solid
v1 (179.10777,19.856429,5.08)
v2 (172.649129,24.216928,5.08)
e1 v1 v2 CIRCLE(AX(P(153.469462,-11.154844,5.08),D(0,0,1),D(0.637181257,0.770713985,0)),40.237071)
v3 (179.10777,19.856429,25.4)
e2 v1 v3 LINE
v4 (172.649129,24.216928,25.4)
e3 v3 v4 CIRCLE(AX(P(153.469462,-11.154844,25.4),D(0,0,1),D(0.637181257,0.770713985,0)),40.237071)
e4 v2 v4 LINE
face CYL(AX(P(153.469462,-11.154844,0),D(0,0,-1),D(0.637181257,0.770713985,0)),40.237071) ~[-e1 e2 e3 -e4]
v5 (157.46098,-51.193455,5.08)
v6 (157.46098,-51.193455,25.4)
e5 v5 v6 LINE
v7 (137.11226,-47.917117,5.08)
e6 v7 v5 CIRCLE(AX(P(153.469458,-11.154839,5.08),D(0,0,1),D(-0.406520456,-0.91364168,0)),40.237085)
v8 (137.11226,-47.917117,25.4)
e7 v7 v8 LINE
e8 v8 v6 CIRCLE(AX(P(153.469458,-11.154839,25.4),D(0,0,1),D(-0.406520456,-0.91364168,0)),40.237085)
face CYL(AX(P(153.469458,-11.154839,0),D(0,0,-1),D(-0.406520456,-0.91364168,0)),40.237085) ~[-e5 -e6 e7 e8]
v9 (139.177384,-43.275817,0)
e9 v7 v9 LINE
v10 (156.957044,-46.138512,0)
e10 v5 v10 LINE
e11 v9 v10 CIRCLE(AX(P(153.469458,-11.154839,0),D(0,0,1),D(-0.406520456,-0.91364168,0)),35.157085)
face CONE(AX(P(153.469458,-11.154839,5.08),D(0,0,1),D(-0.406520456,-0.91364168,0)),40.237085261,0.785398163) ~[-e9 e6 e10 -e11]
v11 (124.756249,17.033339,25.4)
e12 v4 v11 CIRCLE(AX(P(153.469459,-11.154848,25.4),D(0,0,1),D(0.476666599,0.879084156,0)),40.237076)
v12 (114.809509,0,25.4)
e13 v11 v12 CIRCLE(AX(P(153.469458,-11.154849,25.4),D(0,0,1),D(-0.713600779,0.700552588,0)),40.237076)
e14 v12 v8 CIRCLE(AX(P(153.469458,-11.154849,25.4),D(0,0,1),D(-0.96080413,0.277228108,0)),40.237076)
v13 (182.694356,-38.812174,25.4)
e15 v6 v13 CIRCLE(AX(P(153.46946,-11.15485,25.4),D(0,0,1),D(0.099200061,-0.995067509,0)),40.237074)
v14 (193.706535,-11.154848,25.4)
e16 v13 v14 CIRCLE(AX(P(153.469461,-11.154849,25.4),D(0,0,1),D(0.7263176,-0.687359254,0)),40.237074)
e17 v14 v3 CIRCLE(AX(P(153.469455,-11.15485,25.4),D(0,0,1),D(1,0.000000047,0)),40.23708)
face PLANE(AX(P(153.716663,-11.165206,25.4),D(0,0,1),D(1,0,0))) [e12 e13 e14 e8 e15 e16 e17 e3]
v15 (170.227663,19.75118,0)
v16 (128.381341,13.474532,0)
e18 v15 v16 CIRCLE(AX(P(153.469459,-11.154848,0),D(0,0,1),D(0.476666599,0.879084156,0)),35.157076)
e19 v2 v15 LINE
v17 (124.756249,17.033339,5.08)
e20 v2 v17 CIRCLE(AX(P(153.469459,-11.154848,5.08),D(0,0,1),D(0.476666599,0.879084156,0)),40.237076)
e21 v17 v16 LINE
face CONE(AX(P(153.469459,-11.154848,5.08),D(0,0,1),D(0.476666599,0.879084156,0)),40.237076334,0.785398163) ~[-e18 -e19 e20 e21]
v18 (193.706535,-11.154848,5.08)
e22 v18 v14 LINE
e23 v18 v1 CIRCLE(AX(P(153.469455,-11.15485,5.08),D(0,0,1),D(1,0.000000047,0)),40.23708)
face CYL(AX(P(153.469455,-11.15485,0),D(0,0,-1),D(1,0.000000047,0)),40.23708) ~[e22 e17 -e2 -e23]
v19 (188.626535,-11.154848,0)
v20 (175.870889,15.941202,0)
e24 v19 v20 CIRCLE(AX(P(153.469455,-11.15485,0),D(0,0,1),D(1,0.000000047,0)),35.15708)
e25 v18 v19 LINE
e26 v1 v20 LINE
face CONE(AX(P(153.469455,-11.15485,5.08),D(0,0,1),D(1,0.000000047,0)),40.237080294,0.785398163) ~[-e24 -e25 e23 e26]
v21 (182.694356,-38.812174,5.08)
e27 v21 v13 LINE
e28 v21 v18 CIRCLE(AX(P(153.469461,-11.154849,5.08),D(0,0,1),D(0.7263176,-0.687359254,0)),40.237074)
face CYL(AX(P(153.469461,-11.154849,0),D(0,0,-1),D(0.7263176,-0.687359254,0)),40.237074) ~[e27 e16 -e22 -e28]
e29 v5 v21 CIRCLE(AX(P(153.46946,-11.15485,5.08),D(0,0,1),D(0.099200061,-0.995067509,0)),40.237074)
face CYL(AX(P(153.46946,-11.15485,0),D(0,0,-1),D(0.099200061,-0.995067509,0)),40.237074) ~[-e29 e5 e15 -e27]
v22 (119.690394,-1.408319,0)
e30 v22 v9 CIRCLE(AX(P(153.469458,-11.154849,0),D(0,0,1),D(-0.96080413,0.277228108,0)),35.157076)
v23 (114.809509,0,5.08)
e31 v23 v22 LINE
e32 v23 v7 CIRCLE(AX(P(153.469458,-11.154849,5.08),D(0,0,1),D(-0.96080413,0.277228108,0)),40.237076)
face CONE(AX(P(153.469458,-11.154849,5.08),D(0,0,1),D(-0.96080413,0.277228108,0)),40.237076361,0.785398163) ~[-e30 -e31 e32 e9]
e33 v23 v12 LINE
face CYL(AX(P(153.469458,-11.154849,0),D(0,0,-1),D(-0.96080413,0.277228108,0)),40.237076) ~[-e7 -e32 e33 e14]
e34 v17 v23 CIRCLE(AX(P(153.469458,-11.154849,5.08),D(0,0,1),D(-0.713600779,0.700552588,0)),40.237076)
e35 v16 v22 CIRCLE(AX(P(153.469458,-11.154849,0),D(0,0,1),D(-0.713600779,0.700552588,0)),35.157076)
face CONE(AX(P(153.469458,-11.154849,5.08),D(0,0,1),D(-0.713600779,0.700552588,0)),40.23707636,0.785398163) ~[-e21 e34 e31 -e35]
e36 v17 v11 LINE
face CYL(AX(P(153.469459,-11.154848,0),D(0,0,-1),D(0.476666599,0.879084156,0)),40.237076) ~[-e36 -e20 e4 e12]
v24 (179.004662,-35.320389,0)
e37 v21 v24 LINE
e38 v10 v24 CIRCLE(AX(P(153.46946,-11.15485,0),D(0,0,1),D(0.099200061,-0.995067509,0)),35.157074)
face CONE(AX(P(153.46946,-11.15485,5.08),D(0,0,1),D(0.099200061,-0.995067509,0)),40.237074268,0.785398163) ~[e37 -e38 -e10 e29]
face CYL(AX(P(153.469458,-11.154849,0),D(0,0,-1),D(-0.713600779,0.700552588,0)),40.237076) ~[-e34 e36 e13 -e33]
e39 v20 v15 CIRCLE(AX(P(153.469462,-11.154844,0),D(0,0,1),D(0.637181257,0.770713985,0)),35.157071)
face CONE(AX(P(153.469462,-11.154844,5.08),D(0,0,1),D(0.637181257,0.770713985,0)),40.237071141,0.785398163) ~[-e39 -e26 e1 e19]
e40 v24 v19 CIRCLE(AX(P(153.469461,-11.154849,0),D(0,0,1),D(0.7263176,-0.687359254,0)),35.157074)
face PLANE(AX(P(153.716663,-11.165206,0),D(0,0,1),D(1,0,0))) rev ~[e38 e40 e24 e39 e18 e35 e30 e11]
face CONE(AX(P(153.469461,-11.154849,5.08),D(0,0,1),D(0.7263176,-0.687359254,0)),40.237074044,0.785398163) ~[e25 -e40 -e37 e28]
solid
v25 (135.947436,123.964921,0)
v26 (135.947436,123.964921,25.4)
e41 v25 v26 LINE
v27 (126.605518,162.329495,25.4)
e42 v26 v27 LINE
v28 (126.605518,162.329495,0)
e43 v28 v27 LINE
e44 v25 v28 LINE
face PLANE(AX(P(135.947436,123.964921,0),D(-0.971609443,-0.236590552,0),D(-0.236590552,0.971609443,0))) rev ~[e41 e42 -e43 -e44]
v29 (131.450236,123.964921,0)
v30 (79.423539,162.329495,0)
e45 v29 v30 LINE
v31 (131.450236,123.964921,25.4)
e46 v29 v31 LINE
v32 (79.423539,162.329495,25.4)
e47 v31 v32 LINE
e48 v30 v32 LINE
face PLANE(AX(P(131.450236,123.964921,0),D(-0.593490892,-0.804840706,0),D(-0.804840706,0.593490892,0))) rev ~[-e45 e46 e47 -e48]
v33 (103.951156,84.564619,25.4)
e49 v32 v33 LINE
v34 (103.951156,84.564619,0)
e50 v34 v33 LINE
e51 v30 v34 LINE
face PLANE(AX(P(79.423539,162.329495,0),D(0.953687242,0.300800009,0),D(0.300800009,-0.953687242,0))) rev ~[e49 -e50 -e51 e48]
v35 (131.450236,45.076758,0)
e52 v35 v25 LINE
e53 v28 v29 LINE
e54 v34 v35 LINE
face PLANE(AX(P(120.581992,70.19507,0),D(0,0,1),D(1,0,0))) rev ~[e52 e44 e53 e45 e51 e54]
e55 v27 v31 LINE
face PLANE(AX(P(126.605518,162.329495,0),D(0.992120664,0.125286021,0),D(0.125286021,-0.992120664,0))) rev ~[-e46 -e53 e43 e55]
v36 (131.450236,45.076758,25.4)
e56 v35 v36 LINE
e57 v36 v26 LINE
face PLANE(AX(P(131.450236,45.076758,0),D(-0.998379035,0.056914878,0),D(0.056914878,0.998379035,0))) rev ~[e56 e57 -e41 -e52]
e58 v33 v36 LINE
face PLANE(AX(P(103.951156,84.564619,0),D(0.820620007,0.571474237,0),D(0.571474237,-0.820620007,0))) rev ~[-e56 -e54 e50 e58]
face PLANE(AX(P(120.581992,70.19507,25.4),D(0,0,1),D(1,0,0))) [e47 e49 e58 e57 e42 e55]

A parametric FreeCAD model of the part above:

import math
import FreeCAD as App
import Part
import Sketcher
Q = App.Units.Quantity


def edges_at(feature, points):
    """Names of the edges that pass closest to the given points."""
    edges = feature.Shape.Edges
    near = lambda p: min(range(len(edges)), key=lambda i: edges[i].distToShape(Part.Vertex(*p))[0])
    return sorted({f"Edge{near(p) + 1}" for p in points})

doc = App.newDocument("Part")
params = doc.addObject("Spreadsheet::Sheet", "Params")
for row, (alias, value) in enumerate([
    ("pad1_length", "1 in"),
    ("chamfer_size", "0.2 in"),
], start=1):
    params.set(f"A{row}", alias)
    params.set(f"B{row}", "=" + value)
    params.setAlias(f"B{row}", alias)

body = doc.addObject("PartDesign::Body", "Body")
body.AllowCompound = True

# Sketch on XY plane
sketch1 = body.newObject("Sketcher::SketchObject", "Sketch")
sketch1.AttachmentSupport = (doc.getObject("XY_Plane"), [""])
sketch1.MapMode = "FlatFace"
sketch1.addGeometry(Part.LineSegment(App.Vector(104, 85, 0), App.Vector(131, 45, 0)), False)
sketch1.addGeometry(Part.LineSegment(App.Vector(131, 45, 0), App.Vector(136, 124, 0)), False)
sketch1.addGeometry(Part.LineSegment(App.Vector(136, 124, 0), App.Vector(127, 162, 0)), False)
sketch1.addGeometry(Part.LineSegment(App.Vector(127, 162, 0), App.Vector(131, 124, 0)), False)
sketch1.addGeometry(Part.LineSegment(App.Vector(131, 124, 0), App.Vector(79, 162, 0)), False)
sketch1.addGeometry(Part.LineSegment(App.Vector(79, 162, 0), App.Vector(104, 85, 0)), False)
sketch1.addGeometry(Part.ArcOfCircle(Part.Circle(App.Vector(153, -11, 0), App.Vector(0, 0, 1), 40), math.radians(-84), math.radians(-43)), False)
sketch1.addGeometry(Part.ArcOfCircle(Part.Circle(App.Vector(153, -11, 0), App.Vector(0, 0, 1), 40), math.radians(-43), math.radians(0)), False)
sketch1.addGeometry(Part.ArcOfCircle(Part.Circle(App.Vector(153, -11, 0), App.Vector(0, 0, 1), 40), math.radians(0), math.radians(50)), False)
sketch1.addGeometry(Part.ArcOfCircle(Part.Circle(App.Vector(153, -11, 0), App.Vector(0, 0, 1), 40), math.radians(50.42), math.radians(61.53)), False)
sketch1.addGeometry(Part.ArcOfCircle(Part.Circle(App.Vector(153, -11, 0), App.Vector(0, 0, 1), 40), math.radians(62), math.radians(136)), False)
sketch1.addGeometry(Part.ArcOfCircle(Part.Circle(App.Vector(153, -11, 0), App.Vector(0, 0, 1), 40), math.radians(136), math.radians(164)), False)
sketch1.addGeometry(Part.ArcOfCircle(Part.Circle(App.Vector(153, -11, 0), App.Vector(0, 0, 1), 40), math.radians(164), math.radians(246)), False)
sketch1.addGeometry(Part.ArcOfCircle(Part.Circle(App.Vector(153, -11, 0), App.Vector(0, 0, 1), 40), math.radians(-114), math.radians(-84)), False)
sketch1.addConstraint(Sketcher.Constraint("Coincident", 0, 2, 1, 1))
sketch1.addConstraint(Sketcher.Constraint("Coincident", 1, 2, 2, 1))
sketch1.addConstraint(Sketcher.Constraint("Coincident", 2, 2, 3, 1))
sketch1.addConstraint(Sketcher.Constraint("Coincident", 3, 2, 4, 1))
sketch1.addConstraint(Sketcher.Constraint("Coincident", 4, 2, 5, 1))
sketch1.addConstraint(Sketcher.Constraint("Coincident", 5, 2, 0, 1))
sketch1.addConstraint(Sketcher.Constraint("Tangent", 6, 2, 7, 1))
sketch1.addConstraint(Sketcher.Constraint("Tangent", 7, 2, 8, 1))
sketch1.addConstraint(Sketcher.Constraint("Tangent", 8, 2, 9, 1))
sketch1.addConstraint(Sketcher.Constraint("Tangent", 9, 2, 10, 1))
sketch1.addConstraint(Sketcher.Constraint("Tangent", 10, 2, 11, 1))
sketch1.addConstraint(Sketcher.Constraint("Tangent", 11, 2, 12, 1))
sketch1.addConstraint(Sketcher.Constraint("Tangent", 12, 2, 13, 1))
sketch1.addConstraint(Sketcher.Constraint("Tangent", 13, 2, 6, 1))
sketch1.addConstraint(Sketcher.Constraint("Coincident", 8, 3, 6, 3))
sketch1.addConstraint(Sketcher.Constraint("Coincident", 10, 3, 6, 3))
sketch1.addConstraint(Sketcher.Constraint("Equal", 10, 11))
sketch1.addConstraint(Sketcher.Constraint("PointOnObject", 11, 2, -1))
sketch1.addConstraint(Sketcher.Constraint("Horizontal", 1, 2, 3, 2))
sketch1.addConstraint(Sketcher.Constraint("Horizontal", 2, 2, 4, 2))
sketch1.addConstraint(Sketcher.Constraint("Horizontal", 12, 3, 7, 2))
sketch1.addConstraint(Sketcher.Constraint("Vertical", 0, 2, 3, 2))
sketch1.addConstraint(Sketcher.Constraint("Radius", 8, Q("40.23708 mm")))
sketch1.addConstraint(Sketcher.Constraint("DistanceX", 0, 2, 1, 2, Q("4.4972 mm")))
sketch1.addConstraint(Sketcher.Constraint("DistanceY", 8, 2, 9, 2, Q("4.360499 mm")))
sketch1.addConstraint(Sketcher.Constraint("DistanceX", 12, 2, 11, 3, Q("16.357198 mm")))
sketch1.addConstraint(Sketcher.Constraint("Distance", 2, Q("39.485592 mm")))
sketch1.addConstraint(Sketcher.Constraint("Distance", 4, Q("64.642229 mm")))
sketch1.addConstraint(Sketcher.Constraint("DistanceX", -1, 1, 6, 3, Q("153.46946 mm")))
sketch1.addConstraint(Sketcher.Constraint("DistanceY", 6, 3, -1, 1, Q("11.15485 mm")))
sketch1.addConstraint(Sketcher.Constraint("DistanceY", -1, 1, 1, 2, Q("123.964921 mm")))
sketch1.addConstraint(Sketcher.Constraint("DistanceX", -1, 1, 2, 2, Q("126.605518 mm")))
sketch1.addConstraint(Sketcher.Constraint("DistanceX", -1, 1, 4, 2, Q("79.423539 mm")))
sketch1.addConstraint(Sketcher.Constraint("DistanceY", -1, 1, 5, 2, Q("84.564619 mm")))
sketch1.addConstraint(Sketcher.Constraint("DistanceX", -1, 1, 8, 2, Q("179.10777 mm")))
sketch1.addConstraint(Sketcher.Constraint("DistanceX", -1, 1, 10, 2, Q("124.756249 mm")))
sketch1.addConstraint(Sketcher.Constraint("DistanceX", -1, 1, 13, 2, Q("157.46098 mm")))
sketch1.addConstraint(Sketcher.Constraint("DistanceX", 5, 2, 3, 2, Q("27.49908 mm")))
sketch1.addConstraint(Sketcher.Constraint("DistanceY", 0, 2, 5, 2, Q("39.487861 mm")))
sketch1.addConstraint(Sketcher.Constraint("DistanceY", 6, 2, 9, 3, Q("27.65733 mm")))
pad1 = body.newObject("PartDesign::Pad", "Pad")
pad1.Profile = sketch1
pad1.setExpression("Length", "Params.pad1_length")
doc.recompute()

chamfer = body.newObject("PartDesign::Chamfer", "Chamfer")
chamfer.Base = (pad1, edges_at(pad1, [(116.99, -28.134, 0)]))
chamfer.setExpression("Size", "Params.chamfer_size")

doc.recompute()
